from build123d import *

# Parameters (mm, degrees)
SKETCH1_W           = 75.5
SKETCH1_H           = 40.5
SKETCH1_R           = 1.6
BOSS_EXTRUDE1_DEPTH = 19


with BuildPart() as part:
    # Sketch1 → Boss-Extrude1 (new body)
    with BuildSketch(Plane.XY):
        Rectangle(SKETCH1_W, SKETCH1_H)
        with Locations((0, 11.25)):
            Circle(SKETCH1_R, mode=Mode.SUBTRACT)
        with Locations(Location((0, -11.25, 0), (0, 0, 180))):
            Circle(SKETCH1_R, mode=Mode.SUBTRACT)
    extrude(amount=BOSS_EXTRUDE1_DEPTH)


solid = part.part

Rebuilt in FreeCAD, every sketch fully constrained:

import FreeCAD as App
import Part
import Sketcher


def add_polygon(sketch, points):
    """Adds a closed chain of lines whose ends are joined by coincident constraints."""
    first, n = sketch.GeometryCount, len(points)
    for a, b in zip(points, points[1:] + points[:1]):
        sketch.addGeometry(Part.LineSegment(App.Vector(*a, 0), App.Vector(*b, 0)), False)
    for i in range(n):
        sketch.addConstraint(Sketcher.Constraint("Coincident", first + i, 2, first + (i + 1) % n, 1))

doc = App.newDocument("Part")
body = doc.addObject("PartDesign::Body", "Body")

# Sketch on XY plane
sketch1 = body.newObject("Sketcher::SketchObject", "Sketch")
sketch1.AttachmentSupport = (doc.getObject("XY_Plane"), [""])
sketch1.MapMode = "FlatFace"
add_polygon(sketch1, [(-37.8, 20.2), (-37.8, -20.2), (37.8, -20.2), (37.8, 20.2)])  # lines 0-3
sketch1.addGeometry(Part.Circle(App.Vector(0, -11.2, 0), App.Vector(0, 0, 1), 1.6), False)  # 4
sketch1.addGeometry(Part.Circle(App.Vector(0, 11.2, 0), App.Vector(0, 0, 1), 1.6), False)  # 5
sketch1.addConstraint([
    Sketcher.Constraint("Vertical", 0),
    Sketcher.Constraint("Horizontal", 1),
    Sketcher.Constraint("Vertical", 2),
    Sketcher.Constraint("Horizontal", 3),
    Sketcher.Constraint("Equal", 4, 5),
    Sketcher.Constraint("Symmetric", 4, 3, 5, 3, -1, 1),
    Sketcher.Constraint("Symmetric", 0, 2, 2, 2, -1, 1),
    Sketcher.Constraint("PointOnObject", 4, 3, -2),
    Sketcher.Constraint("Diameter", 4, 3.2),
    Sketcher.Constraint("DistanceX", 1, 1, 1, 2, 75.5),
    Sketcher.Constraint("DistanceY", 0, 2, 0, 1, 40.5),
    Sketcher.Constraint("DistanceY", 0, 2, 4, 3, 9.0),
])
pad1 = body.newObject("PartDesign::Pad", "Pad")
pad1.Profile = sketch1
pad1.Length = 19

doc.recompute()
